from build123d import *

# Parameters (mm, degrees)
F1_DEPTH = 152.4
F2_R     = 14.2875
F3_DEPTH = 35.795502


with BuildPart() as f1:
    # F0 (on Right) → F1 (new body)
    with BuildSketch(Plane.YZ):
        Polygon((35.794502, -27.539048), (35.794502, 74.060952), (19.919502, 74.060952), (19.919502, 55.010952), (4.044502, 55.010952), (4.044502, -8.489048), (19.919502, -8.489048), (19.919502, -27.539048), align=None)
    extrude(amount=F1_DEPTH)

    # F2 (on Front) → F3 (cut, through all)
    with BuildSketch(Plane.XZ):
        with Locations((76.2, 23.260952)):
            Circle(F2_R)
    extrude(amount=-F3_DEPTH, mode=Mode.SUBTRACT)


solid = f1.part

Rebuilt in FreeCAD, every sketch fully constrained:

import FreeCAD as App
import Part
import Sketcher
from FreeCAD import Vector
Q = App.Units.Quantity


def add_polygon(sketch, points):
    """Adds a closed chain of lines whose ends are joined by coincident constraints."""
    first, n = sketch.GeometryCount, len(points)
    for a, b in zip(points, points[1:] + points[:1]):
        sketch.addGeometry(Part.LineSegment(App.Vector(*a, 0), App.Vector(*b, 0)), False)
    for i in range(n):
        sketch.addConstraint(Sketcher.Constraint("Coincident", first + i, 2, first + (i + 1) % n, 1))

doc = App.newDocument("Part")
body = doc.addObject("PartDesign::Body", "Body")

sketch1 = body.newObject("Sketcher::SketchObject", "Sketch")
sketch1.AttachmentSupport = (doc.getObject("YZ_Plane"), [""])
sketch1.MapMode = "FlatFace"
add_polygon(sketch1, [(35.794502, -27.539048), (35.794502, 74.060952), (19.919502, 74.060952), (19.919502, 55.010952), (4.044502, 55.010952), (4.044502, -8.489048), (19.919502, -8.489048), (19.919502, -27.539048)])
sketch1.addConstraint(Sketcher.Constraint("Vertical", 0))
sketch1.addConstraint(Sketcher.Constraint("Horizontal", 1))
sketch1.addConstraint(Sketcher.Constraint("Vertical", 2))
sketch1.addConstraint(Sketcher.Constraint("Horizontal", 3))
sketch1.addConstraint(Sketcher.Constraint("Vertical", 4))
sketch1.addConstraint(Sketcher.Constraint("Horizontal", 5))
sketch1.addConstraint(Sketcher.Constraint("Vertical", 6))
sketch1.addConstraint(Sketcher.Constraint("Horizontal", 7))
sketch1.addConstraint(Sketcher.Constraint("Vertical", 2, 2, 5, 2))
sketch1.addConstraint(Sketcher.Constraint("Equal", 1, 3))
sketch1.addConstraint(Sketcher.Constraint("Equal", 2, 6))
sketch1.addConstraint(Sketcher.Constraint("DistanceY", 0, 1, 0, 2, Q("4 in")))
sketch1.addConstraint(Sketcher.Constraint("DistanceY", 4, 2, 4, 1, Q("2.5 in")))
sketch1.addConstraint(Sketcher.Constraint("DistanceX", 1, 2, 1, 1, Q("0.625 in")))
sketch1.addConstraint(Sketcher.Constraint("DistanceX", -1, 1, 3, 2, 4.044502))
sketch1.addConstraint(Sketcher.Constraint("DistanceY", -1, 1, 0, 2, 74.060952))
pad1 = body.newObject("PartDesign::Pad", "Pad")
pad1.Profile = sketch1
pad1.Length = Q("6 in")

sketch2 = body.newObject("Sketcher::SketchObject", "Sketch001")
sketch2.AttachmentSupport = (doc.getObject("XZ_Plane"), [""])
sketch2.MapMode = "FlatFace"
sketch2.addGeometry(Part.Circle(Vector(76.2, 23.260952, 0), Vector(0, 0, 1), 14.2875), False)
sketch2.addConstraint(Sketcher.Constraint("Diameter", 0, Q("1.125 in")))
sketch2.addConstraint(Sketcher.Constraint("DistanceX", -1, 1, 0, 3, Q("3 in")))
sketch2.addConstraint(Sketcher.Constraint("DistanceY", -1, 1, 0, 3, 23.260952))
pocket1 = body.newObject("PartDesign::Pocket", "Pocket")
pocket1.Profile = sketch2
pocket1.Type = "ThroughAll"

doc.recompute()
